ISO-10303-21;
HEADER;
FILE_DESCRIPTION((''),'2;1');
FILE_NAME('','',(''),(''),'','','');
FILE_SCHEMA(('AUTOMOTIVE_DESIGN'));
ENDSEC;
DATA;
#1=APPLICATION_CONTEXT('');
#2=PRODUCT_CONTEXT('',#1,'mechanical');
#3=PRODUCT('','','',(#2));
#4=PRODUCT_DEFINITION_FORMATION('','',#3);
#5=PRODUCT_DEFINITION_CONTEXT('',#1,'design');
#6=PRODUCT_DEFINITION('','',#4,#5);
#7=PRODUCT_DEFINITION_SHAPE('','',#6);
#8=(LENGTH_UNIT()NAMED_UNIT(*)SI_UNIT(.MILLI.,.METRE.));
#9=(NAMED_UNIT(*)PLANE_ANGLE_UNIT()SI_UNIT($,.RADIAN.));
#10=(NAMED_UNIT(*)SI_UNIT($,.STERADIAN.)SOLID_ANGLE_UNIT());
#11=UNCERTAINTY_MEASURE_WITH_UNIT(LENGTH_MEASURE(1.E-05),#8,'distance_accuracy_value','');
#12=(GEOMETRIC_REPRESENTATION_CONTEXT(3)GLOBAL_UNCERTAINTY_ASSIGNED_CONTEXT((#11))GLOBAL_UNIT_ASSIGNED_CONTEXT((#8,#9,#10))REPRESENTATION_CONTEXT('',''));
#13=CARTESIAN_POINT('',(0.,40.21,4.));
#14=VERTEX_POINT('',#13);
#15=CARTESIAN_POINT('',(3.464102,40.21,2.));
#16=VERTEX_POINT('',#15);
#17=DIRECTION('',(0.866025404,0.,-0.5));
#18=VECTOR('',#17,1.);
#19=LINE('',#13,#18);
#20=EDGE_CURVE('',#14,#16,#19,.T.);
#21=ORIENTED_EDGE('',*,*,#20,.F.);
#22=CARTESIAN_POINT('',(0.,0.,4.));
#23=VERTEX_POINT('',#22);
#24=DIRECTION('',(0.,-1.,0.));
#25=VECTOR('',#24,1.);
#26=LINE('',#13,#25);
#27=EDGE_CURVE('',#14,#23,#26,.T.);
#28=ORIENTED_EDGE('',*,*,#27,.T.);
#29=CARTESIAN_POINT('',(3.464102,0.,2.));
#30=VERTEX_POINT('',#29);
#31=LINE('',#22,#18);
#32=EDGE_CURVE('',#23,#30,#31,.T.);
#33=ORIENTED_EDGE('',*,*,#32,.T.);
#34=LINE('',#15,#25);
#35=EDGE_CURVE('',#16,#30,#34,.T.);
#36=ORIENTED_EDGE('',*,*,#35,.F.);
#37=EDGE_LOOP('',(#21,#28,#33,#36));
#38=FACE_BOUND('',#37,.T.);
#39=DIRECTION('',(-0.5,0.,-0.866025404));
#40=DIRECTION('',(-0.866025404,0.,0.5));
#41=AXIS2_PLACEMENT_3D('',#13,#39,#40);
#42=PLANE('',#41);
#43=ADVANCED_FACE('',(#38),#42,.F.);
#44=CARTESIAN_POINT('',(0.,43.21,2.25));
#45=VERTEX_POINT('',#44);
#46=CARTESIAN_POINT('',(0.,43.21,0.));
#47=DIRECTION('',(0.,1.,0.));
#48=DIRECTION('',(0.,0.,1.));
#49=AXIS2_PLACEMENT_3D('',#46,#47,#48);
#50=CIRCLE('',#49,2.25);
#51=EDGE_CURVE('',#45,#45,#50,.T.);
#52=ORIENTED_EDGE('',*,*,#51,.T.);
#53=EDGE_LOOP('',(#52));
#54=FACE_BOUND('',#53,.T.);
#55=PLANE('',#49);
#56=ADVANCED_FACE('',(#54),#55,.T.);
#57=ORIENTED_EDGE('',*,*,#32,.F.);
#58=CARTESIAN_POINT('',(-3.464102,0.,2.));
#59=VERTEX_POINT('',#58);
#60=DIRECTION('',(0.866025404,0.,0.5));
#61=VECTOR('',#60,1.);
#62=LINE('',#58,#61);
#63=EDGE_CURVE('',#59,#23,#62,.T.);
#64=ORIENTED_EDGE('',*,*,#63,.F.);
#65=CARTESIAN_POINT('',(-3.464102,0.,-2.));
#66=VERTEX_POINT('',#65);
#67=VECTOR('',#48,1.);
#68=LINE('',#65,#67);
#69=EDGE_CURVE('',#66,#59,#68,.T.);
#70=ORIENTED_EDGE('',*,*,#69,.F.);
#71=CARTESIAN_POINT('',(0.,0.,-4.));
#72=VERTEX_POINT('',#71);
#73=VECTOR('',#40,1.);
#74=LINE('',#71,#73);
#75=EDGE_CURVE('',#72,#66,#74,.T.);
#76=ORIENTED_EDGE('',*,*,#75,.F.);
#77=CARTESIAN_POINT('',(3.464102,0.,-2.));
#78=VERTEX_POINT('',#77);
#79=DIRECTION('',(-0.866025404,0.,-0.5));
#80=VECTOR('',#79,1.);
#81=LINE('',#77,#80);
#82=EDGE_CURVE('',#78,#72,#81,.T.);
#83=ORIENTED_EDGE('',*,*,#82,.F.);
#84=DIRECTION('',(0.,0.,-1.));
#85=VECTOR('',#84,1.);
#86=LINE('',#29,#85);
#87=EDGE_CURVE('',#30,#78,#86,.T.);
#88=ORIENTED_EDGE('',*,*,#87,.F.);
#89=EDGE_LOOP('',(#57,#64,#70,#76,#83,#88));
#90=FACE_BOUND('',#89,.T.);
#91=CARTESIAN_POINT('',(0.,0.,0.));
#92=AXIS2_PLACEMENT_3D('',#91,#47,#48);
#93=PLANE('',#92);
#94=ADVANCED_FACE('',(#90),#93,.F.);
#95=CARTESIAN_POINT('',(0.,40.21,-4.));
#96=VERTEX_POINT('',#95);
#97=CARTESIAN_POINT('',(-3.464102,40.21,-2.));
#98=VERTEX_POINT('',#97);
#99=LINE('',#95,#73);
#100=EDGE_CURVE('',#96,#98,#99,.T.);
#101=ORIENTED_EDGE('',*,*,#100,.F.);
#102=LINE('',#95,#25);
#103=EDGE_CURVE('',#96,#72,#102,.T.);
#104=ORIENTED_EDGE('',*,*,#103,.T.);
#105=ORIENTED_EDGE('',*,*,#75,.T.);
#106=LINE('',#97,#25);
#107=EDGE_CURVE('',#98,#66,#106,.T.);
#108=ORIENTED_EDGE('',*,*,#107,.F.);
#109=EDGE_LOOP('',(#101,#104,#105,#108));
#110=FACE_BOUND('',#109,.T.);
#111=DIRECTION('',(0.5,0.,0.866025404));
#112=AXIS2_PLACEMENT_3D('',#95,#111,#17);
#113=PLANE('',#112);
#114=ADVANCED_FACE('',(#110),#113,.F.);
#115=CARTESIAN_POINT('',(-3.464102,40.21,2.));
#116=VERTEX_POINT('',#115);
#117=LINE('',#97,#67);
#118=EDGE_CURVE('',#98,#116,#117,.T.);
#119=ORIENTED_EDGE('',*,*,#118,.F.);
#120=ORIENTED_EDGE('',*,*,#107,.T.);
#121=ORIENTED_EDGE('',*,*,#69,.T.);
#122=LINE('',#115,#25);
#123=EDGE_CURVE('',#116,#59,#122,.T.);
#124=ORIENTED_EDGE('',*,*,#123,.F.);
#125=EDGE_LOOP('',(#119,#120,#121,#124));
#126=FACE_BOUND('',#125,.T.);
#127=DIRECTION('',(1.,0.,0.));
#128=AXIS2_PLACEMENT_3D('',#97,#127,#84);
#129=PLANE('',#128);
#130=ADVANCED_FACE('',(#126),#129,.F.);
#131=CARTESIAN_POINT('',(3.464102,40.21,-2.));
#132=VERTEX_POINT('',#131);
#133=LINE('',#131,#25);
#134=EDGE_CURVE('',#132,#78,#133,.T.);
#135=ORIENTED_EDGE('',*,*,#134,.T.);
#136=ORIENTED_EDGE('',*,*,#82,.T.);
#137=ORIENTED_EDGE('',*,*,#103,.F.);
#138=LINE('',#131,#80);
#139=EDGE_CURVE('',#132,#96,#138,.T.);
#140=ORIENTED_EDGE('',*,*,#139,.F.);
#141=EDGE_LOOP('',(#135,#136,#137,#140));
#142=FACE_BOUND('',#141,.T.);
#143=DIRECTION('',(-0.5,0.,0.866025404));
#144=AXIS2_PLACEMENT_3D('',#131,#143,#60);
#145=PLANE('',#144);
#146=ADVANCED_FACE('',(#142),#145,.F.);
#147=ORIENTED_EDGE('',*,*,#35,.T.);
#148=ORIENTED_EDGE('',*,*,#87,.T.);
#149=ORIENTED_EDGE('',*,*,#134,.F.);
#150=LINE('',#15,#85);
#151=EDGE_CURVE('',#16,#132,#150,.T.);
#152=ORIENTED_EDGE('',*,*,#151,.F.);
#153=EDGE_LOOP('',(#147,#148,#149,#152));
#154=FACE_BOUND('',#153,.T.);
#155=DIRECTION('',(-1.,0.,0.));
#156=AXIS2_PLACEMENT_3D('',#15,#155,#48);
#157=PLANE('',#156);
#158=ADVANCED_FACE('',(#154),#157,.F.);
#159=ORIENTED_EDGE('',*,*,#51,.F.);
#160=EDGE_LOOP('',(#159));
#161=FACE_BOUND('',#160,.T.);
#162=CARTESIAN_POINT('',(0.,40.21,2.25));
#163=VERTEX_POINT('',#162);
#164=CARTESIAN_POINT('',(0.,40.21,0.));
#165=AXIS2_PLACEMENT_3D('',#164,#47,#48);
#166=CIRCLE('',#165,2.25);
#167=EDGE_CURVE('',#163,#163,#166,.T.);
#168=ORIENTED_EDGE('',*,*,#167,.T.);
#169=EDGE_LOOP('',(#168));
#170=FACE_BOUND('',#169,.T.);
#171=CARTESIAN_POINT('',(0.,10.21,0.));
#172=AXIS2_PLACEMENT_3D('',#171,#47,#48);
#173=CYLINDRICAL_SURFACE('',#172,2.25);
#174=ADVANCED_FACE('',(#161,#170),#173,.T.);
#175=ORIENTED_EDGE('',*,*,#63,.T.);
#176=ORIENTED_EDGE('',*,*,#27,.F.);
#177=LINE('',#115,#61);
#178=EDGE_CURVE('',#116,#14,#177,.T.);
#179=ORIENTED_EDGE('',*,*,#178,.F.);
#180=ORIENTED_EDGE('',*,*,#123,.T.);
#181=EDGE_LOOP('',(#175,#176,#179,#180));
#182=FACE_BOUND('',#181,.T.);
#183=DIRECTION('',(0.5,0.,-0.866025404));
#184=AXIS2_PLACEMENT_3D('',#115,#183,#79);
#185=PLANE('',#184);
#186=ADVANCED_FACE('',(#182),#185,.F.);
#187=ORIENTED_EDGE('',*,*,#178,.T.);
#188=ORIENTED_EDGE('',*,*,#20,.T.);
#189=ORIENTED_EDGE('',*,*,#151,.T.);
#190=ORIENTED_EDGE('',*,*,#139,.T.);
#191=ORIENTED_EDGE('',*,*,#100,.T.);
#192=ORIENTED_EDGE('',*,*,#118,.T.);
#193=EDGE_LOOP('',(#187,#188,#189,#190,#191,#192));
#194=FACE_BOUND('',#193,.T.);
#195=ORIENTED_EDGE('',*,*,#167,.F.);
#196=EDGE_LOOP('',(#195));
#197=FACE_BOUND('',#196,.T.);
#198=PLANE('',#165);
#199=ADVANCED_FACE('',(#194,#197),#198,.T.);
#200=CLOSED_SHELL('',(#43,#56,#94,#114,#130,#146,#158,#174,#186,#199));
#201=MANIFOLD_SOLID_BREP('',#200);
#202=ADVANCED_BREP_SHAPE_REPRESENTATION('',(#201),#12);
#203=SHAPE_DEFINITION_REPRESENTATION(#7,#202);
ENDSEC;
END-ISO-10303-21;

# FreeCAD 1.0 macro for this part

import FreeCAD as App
import Part
import Sketcher

V = App.Vector
Q = App.Units.Quantity


def add_polygon(sketch, points):
    """Adds a closed chain of lines whose ends are joined by coincident constraints."""
    first, n = sketch.GeometryCount, len(points)
    for a, b in zip(points, points[1:] + points[:1]):
        sketch.addGeometry(Part.LineSegment(App.Vector(*a, 0), App.Vector(*b, 0)), False)
    for i in range(n):
        sketch.addConstraint(Sketcher.Constraint("Coincident", first + i, 2, first + (i + 1) % n, 1))

doc = App.newDocument("Part")
body = doc.addObject("PartDesign::Body", "Body")

# Sketch on XZ plane
sketch1 = doc.addObject("Sketcher::SketchObject", "Sketch")
body.addObject(sketch1)
sketch1.AttachmentSupport = (doc.XZ_Plane, [""])
sketch1.MapMode = "FlatFace"
add_polygon(sketch1, [(0, 4), (3.5, 2), (3.5, -2), (0, -4), (-3.5, -2), (-3.5, 2)])  # lines 0-5
sketch1.addConstraint([
    Sketcher.Constraint("Vertical", 1),
    Sketcher.Constraint("Vertical", 4),
    Sketcher.Constraint("Symmetric", 0, 2, 3, 2, -1, 1),
    Sketcher.Constraint("Symmetric", 2, 2, 5, 2, -1, 1),
    Sketcher.Constraint("PointOnObject", 2, 2, -2),
    Sketcher.Constraint("Parallel", 2, 5),
    Sketcher.Constraint("Horizontal", 1, 2, 3, 2),
    Sketcher.Constraint("DistanceY", 1, 2, 1, 1, 4.0),
    Sketcher.Constraint("Angle", 0, Q("-30 deg")),
    Sketcher.Constraint("Distance", 0, 4.0),
])
pad1 = doc.addObject("PartDesign::Pad", "Pad")
body.addObject(pad1)
pad1.Profile = sketch1
pad1.Length = 40.21
pad1.Reversed = True

# Sketch on XZ plane
sketch2 = doc.addObject("Sketcher::SketchObject", "Sketch001")
body.addObject(sketch2)
sketch2.AttachmentSupport = (doc.XZ_Plane, [""])
sketch2.MapMode = "FlatFace"
sketch2.AttachmentOffset = App.Placement(V(0, 0, -40.21), App.Rotation())
sketch2.addGeometry(Part.Circle(V(0, 0, 0), V(0, 0, 1), 2.2), False)
sketch2.addConstraint([
    Sketcher.Constraint("Coincident", 0, 3, -1, 1),
    Sketcher.Constraint("Diameter", 0, 4.5),
])
pad2 = doc.addObject("PartDesign::Pad", "Pad001")
body.addObject(pad2)
pad2.Profile = sketch2
pad2.Type = "TwoLengths"
pad2.Length = 3
pad2.Length2 = 30
pad2.Reversed = True

doc.recompute()
